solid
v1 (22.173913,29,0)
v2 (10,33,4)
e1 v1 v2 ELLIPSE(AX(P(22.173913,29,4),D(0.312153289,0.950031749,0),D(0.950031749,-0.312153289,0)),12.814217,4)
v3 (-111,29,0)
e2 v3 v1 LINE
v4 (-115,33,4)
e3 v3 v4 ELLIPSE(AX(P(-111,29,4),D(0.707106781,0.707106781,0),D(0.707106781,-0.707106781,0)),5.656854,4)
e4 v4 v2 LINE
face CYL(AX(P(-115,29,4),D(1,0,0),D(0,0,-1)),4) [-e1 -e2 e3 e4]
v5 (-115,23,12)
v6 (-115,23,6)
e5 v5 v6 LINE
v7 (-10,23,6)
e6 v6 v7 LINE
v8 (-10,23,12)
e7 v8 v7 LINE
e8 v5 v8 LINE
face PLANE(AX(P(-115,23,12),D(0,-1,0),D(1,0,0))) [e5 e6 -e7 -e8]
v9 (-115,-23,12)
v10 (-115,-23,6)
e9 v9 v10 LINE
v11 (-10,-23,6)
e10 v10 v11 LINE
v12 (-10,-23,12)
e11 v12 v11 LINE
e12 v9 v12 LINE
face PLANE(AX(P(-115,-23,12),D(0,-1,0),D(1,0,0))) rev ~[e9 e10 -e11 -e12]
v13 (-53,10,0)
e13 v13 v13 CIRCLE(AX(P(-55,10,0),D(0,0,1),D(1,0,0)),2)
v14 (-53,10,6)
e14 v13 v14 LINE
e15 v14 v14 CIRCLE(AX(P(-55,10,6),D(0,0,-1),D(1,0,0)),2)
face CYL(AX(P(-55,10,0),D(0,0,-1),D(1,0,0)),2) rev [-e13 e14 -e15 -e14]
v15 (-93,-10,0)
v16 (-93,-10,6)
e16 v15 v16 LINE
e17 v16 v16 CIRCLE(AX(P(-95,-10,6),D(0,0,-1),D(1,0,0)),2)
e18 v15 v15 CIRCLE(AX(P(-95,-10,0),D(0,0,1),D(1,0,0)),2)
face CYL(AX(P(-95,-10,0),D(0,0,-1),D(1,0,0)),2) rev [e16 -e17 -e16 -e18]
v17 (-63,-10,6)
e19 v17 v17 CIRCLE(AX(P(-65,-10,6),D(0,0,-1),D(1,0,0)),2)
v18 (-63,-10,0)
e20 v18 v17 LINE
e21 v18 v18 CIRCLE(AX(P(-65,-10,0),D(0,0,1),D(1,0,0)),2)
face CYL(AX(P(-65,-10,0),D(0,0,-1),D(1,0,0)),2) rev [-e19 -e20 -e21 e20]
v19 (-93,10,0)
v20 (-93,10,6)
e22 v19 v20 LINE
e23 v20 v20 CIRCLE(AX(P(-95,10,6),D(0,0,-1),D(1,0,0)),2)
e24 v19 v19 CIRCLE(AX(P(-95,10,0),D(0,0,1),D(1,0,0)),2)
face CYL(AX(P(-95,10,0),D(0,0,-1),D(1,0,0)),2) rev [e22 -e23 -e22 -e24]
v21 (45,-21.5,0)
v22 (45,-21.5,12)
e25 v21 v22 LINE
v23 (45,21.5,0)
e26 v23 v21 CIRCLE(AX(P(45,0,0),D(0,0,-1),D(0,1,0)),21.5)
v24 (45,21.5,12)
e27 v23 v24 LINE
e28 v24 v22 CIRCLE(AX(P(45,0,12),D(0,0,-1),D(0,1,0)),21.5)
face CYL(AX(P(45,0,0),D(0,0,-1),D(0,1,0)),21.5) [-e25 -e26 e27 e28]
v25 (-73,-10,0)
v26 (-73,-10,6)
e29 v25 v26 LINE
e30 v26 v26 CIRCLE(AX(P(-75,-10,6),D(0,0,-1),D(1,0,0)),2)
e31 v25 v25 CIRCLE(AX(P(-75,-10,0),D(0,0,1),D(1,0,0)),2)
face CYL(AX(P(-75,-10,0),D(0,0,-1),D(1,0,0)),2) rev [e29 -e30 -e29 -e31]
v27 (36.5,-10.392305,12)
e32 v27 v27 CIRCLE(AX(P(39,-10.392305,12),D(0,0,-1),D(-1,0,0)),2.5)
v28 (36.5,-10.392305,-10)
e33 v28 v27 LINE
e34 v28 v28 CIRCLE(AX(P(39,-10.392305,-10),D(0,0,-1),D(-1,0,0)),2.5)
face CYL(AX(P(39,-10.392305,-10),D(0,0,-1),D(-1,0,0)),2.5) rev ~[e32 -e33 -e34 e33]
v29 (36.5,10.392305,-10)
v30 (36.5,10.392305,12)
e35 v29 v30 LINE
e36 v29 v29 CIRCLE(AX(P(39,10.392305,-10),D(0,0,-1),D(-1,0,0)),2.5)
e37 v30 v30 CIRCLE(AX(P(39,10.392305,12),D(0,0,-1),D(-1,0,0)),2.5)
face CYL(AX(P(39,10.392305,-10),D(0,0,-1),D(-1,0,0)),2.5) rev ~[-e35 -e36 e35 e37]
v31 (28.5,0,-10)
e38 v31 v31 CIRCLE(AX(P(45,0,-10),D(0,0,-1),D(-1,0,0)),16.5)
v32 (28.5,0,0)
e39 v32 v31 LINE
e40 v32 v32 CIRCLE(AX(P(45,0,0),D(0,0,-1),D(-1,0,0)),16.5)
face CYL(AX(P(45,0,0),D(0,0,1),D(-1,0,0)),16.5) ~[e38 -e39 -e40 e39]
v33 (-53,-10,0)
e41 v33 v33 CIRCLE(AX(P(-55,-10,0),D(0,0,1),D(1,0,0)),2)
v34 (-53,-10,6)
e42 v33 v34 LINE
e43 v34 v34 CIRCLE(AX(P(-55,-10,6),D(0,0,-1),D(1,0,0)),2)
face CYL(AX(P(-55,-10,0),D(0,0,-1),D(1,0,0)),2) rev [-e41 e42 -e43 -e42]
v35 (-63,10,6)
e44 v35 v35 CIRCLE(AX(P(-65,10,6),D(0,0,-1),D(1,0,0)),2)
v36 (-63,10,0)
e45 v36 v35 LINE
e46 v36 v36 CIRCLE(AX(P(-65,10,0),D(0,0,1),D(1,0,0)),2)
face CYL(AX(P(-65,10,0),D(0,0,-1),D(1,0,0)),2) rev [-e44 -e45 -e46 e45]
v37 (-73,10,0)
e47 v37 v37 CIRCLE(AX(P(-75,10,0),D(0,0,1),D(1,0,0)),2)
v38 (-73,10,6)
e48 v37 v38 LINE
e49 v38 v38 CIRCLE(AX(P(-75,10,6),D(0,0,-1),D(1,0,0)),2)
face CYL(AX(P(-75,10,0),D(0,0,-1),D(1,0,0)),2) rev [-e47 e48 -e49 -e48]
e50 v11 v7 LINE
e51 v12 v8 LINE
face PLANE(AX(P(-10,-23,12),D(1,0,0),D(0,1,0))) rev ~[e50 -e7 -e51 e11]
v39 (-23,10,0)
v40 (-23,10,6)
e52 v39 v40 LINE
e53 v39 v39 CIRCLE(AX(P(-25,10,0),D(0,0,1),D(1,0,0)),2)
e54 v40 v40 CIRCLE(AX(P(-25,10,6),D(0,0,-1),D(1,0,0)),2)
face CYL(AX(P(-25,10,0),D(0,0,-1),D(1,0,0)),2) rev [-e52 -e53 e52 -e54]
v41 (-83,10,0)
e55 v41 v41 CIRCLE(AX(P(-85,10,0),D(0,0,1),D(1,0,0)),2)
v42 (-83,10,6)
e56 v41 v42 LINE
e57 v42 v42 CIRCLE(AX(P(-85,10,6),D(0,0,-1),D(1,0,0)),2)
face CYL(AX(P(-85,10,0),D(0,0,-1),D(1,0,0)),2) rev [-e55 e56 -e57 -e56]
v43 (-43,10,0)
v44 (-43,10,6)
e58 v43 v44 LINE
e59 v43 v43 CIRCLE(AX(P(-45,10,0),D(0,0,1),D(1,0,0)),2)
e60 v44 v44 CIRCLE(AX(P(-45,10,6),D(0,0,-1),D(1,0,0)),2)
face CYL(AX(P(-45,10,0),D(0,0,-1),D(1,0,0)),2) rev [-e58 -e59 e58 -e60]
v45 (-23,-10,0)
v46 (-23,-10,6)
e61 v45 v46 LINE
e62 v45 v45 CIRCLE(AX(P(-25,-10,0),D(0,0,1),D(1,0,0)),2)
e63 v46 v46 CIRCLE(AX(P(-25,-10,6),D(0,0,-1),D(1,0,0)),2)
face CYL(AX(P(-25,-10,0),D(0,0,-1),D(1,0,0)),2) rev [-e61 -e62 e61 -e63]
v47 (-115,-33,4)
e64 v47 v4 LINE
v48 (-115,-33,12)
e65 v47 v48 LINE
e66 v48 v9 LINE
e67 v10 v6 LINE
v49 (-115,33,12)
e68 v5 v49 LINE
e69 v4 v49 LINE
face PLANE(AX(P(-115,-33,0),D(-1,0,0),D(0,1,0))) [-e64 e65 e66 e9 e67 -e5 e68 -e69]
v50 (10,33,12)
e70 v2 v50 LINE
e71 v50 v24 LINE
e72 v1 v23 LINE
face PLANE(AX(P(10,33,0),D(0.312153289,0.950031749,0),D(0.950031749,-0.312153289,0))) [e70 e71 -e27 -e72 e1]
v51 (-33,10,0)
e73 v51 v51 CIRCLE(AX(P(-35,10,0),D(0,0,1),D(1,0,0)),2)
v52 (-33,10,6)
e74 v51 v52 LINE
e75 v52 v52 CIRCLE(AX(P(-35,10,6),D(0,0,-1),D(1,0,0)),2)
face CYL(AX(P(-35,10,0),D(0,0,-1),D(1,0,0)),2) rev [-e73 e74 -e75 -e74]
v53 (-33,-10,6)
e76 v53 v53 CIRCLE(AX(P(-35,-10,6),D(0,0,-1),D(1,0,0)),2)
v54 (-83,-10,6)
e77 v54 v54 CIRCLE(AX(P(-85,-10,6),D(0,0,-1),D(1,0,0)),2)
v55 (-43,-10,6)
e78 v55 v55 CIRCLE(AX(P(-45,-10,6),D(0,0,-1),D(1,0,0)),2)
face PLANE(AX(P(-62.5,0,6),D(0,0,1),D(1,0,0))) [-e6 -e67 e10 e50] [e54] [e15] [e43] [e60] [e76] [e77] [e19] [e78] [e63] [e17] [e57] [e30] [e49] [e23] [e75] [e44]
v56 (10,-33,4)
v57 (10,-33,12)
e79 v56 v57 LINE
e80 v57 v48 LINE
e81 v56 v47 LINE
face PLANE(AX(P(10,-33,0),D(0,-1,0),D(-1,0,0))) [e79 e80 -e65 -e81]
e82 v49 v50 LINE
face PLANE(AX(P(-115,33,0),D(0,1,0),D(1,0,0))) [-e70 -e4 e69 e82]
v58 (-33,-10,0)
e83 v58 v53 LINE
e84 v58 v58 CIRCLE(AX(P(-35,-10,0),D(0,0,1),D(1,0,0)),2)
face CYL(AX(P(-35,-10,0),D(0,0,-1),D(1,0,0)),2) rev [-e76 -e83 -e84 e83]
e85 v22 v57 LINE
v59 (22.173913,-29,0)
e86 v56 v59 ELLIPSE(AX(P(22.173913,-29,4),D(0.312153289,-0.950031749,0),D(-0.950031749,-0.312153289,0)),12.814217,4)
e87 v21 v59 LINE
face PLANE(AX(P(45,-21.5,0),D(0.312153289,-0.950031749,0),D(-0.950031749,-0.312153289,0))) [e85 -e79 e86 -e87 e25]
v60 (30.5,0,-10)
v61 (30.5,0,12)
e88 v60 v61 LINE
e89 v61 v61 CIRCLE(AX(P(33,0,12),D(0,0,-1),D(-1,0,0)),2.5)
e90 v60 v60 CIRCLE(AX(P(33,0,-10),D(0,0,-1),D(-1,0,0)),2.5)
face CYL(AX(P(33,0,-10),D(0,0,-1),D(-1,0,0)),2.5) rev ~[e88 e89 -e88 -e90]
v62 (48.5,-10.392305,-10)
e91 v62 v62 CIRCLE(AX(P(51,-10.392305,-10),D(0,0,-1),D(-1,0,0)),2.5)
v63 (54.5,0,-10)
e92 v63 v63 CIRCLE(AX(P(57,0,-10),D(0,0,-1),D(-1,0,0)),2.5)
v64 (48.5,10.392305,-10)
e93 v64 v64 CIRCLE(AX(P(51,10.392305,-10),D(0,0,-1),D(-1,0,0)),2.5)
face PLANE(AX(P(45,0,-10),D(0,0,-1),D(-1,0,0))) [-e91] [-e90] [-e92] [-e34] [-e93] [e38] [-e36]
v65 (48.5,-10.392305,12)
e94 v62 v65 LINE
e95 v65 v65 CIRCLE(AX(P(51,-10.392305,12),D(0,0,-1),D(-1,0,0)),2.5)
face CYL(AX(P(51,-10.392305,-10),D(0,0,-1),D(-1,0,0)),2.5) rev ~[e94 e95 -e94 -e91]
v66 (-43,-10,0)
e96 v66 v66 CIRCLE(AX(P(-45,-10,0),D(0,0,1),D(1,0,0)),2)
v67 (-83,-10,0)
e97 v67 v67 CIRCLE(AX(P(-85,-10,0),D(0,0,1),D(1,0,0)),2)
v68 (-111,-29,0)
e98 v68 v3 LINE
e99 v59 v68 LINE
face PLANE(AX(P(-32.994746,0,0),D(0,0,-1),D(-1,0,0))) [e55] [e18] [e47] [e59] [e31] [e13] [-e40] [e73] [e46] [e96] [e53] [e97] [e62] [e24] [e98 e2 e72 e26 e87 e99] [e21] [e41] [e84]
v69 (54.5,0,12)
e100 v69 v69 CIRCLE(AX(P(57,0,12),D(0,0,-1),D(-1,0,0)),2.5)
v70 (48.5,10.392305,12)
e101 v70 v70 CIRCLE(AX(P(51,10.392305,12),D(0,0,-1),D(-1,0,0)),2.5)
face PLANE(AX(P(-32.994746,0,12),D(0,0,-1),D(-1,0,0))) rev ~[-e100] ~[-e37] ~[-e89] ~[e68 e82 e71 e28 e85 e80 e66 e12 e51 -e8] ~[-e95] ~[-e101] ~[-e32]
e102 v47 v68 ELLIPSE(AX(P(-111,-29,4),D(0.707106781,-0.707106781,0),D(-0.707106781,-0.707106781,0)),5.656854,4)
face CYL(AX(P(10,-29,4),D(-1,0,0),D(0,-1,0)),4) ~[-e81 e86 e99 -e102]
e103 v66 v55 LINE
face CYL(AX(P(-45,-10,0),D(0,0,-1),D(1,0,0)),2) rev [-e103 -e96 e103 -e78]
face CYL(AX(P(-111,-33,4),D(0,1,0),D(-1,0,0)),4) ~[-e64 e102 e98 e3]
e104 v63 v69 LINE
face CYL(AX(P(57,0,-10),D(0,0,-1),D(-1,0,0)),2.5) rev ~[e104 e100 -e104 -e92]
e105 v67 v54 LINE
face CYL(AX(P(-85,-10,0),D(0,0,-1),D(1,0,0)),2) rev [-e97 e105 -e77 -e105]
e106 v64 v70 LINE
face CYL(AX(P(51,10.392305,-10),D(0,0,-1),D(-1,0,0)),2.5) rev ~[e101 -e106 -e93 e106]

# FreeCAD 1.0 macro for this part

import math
import FreeCAD as App
import Part
import Sketcher
Q = App.Units.Quantity


def edges_at(feature, points):
    """Names of the edges that pass closest to the given points."""
    edges = feature.Shape.Edges
    near = lambda p: min(range(len(edges)), key=lambda i: edges[i].distToShape(Part.Vertex(*p))[0])
    return sorted({f"Edge{near(p) + 1}" for p in points})


def add_polygon(sketch, points):
    """Adds a closed chain of lines whose ends are joined by coincident constraints."""
    first, n = sketch.GeometryCount, len(points)
    for a, b in zip(points, points[1:] + points[:1]):
        sketch.addGeometry(Part.LineSegment(App.Vector(*a, 0), App.Vector(*b, 0)), False)
    for i in range(n):
        sketch.addConstraint(Sketcher.Constraint("Coincident", first + i, 2, first + (i + 1) % n, 1))

doc = App.newDocument("Part")
body = doc.addObject("PartDesign::Body", "Body")

# Sketch on XY plane
sketch1 = body.newObject("Sketcher::SketchObject", "Sketch")
sketch1.AttachmentSupport = (doc.getObject("XY_Plane"), [""])
sketch1.MapMode = "FlatFace"
sketch1.addGeometry([
    Part.LineSegment(App.Vector(-115, -33, 0), App.Vector(10, -33, 0)),  # 0
    Part.LineSegment(App.Vector(10, -33, 0), App.Vector(45, -21.5, 0)),  # 1
    Part.ArcOfCircle(Part.Circle(App.Vector(45, 0, 0), App.Vector(0, 0, 1), 21.5), math.radians(-90), math.radians(90)),  # 2
    Part.LineSegment(App.Vector(45, 21.5, 0), App.Vector(10, 33, 0)),  # 3
    Part.LineSegment(App.Vector(10, 33, 0), App.Vector(-115, 33, 0)),  # 4
    Part.LineSegment(App.Vector(-115, 33, 0), App.Vector(-115, -33, 0)),  # 5
    Part.Circle(App.Vector(-25, -10, 0), App.Vector(0, 0, 1), 2),  # 6
    Part.Circle(App.Vector(-35, -10, 0), App.Vector(0, 0, 1), 2),  # 7
    Part.Circle(App.Vector(-45, -10, 0), App.Vector(0, 0, 1), 2),  # 8
    Part.Circle(App.Vector(-55, -10, 0), App.Vector(0, 0, 1), 2),  # 9
    Part.Circle(App.Vector(-65, -10, 0), App.Vector(0, 0, 1), 2),  # 10
    Part.Circle(App.Vector(-75, -10, 0), App.Vector(0, 0, 1), 2),  # 11
    Part.Circle(App.Vector(-85, -10, 0), App.Vector(0, 0, 1), 2),  # 12
    Part.Circle(App.Vector(-95, -10, 0), App.Vector(0, 0, 1), 2),  # 13
    Part.Circle(App.Vector(-25, 10, 0), App.Vector(0, 0, 1), 2),  # 14
    Part.Circle(App.Vector(-35, 10, 0), App.Vector(0, 0, 1), 2),  # 15
    Part.Circle(App.Vector(-45, 10, 0), App.Vector(0, 0, 1), 2),  # 16
    Part.Circle(App.Vector(-55, 10, 0), App.Vector(0, 0, 1), 2),  # 17
    Part.Circle(App.Vector(-65, 10, 0), App.Vector(0, 0, 1), 2),  # 18
    Part.Circle(App.Vector(-75, 10, 0), App.Vector(0, 0, 1), 2),  # 19
    Part.Circle(App.Vector(-85, 10, 0), App.Vector(0, 0, 1), 2),  # 20
    Part.Circle(App.Vector(-95, 10, 0), App.Vector(0, 0, 1), 2),  # 21
], False)
sketch1.addConstraint([
    Sketcher.Constraint("Coincident", 0, 2, 1, 1),
    Sketcher.Constraint("Coincident", 1, 2, 2, 1),
    Sketcher.Constraint("Coincident", 2, 2, 3, 1),
    Sketcher.Constraint("Coincident", 3, 2, 4, 1),
    Sketcher.Constraint("Coincident", 4, 2, 5, 1),
    Sketcher.Constraint("Coincident", 5, 2, 0, 1),
    Sketcher.Constraint("Horizontal", 0),
    Sketcher.Constraint("Horizontal", 4),
    Sketcher.Constraint("Vertical", 5),
    Sketcher.Constraint("Equal", 6, 7),
    Sketcher.Constraint("Equal", 7, 8),
    Sketcher.Constraint("Equal", 8, 9),
    Sketcher.Constraint("Equal", 9, 10),
    Sketcher.Constraint("Equal", 10, 11),
    Sketcher.Constraint("Equal", 11, 12),
    Sketcher.Constraint("Equal", 12, 13),
    Sketcher.Constraint("Equal", 13, 14),
    Sketcher.Constraint("Equal", 14, 15),
    Sketcher.Constraint("Equal", 15, 16),
    Sketcher.Constraint("Equal", 16, 17),
    Sketcher.Constraint("Equal", 17, 18),
    Sketcher.Constraint("Equal", 18, 19),
    Sketcher.Constraint("Equal", 19, 20),
    Sketcher.Constraint("Equal", 20, 21),
    Sketcher.Constraint("Symmetric", 6, 3, 14, 3, -1),
    Sketcher.Constraint("Symmetric", 7, 3, 15, 3, -1),
    Sketcher.Constraint("Symmetric", 8, 3, 16, 3, -1),
    Sketcher.Constraint("Symmetric", 9, 3, 17, 3, -1),
    Sketcher.Constraint("Symmetric", 10, 3, 18, 3, -1),
    Sketcher.Constraint("Symmetric", 11, 3, 19, 3, -1),
    Sketcher.Constraint("Symmetric", 12, 3, 20, 3, -1),
    Sketcher.Constraint("Symmetric", 13, 3, 21, 3, -1),
    Sketcher.Constraint("Symmetric", 1, 2, 2, 2, -1),
    Sketcher.Constraint("Symmetric", 0, 2, 3, 2, -1),
    Sketcher.Constraint("Horizontal", 6, 3, 7, 3),
    Sketcher.Constraint("Horizontal", 7, 3, 8, 3),
    Sketcher.Constraint("Horizontal", 8, 3, 9, 3),
    Sketcher.Constraint("Horizontal", 9, 3, 10, 3),
    Sketcher.Constraint("Horizontal", 10, 3, 11, 3),
    Sketcher.Constraint("Horizontal", 11, 3, 12, 3),
    Sketcher.Constraint("Horizontal", 12, 3, 13, 3),
    Sketcher.Constraint("Vertical", 2, 3, 1, 2),
    Sketcher.Constraint("Diameter", 6, Q("4 mm")),
    Sketcher.Constraint("Radius", 2, Q("21.5 mm")),
    Sketcher.Constraint("DistanceX", 0, 1, 0, 2, Q("125 mm")),
    Sketcher.Constraint("DistanceY", 5, 2, 5, 1, Q("66 mm")),
    Sketcher.Constraint("DistanceX", -1, 1, 2, 3, Q("45 mm")),
    Sketcher.Constraint("DistanceX", 6, 3, -1, 1, Q("25 mm")),
    Sketcher.Constraint("DistanceY", 6, 3, -1, 1, Q("10 mm")),
    Sketcher.Constraint("DistanceX", 7, 3, -1, 1, Q("35 mm")),
    Sketcher.Constraint("DistanceX", 8, 3, -1, 1, Q("45 mm")),
    Sketcher.Constraint("DistanceX", 9, 3, -1, 1, Q("55 mm")),
    Sketcher.Constraint("DistanceX", 10, 3, -1, 1, Q("65 mm")),
    Sketcher.Constraint("DistanceX", 11, 3, -1, 1, Q("75 mm")),
    Sketcher.Constraint("DistanceX", 12, 3, -1, 1, Q("85 mm")),
    Sketcher.Constraint("DistanceX", 13, 3, -1, 1, Q("95 mm")),
    Sketcher.Constraint("DistanceX", -1, 1, 0, 2, Q("10 mm")),
])
pad1 = body.newObject("PartDesign::Pad", "Pad")
pad1.Profile = sketch1
pad1.Length = 12

# Sketch on XY plane
sketch2 = body.newObject("Sketcher::SketchObject", "Sketch001")
sketch2.AttachmentSupport = (doc.getObject("XY_Plane"), [""])
sketch2.MapMode = "FlatFace"
sketch2.addGeometry(Part.Circle(App.Vector(45, 0, 0), App.Vector(0, 0, 1), 16), False)
sketch2.addConstraint([
    Sketcher.Constraint("PointOnObject", 0, 3, -1),
    Sketcher.Constraint("Diameter", 0, Q("33 mm")),
    Sketcher.Constraint("DistanceX", -1, 1, 0, 3, Q("45 mm")),
])
pad2 = body.newObject("PartDesign::Pad", "Pad001")
pad2.Profile = sketch2
pad2.Length = 10
pad2.Reversed = True

# Sketch on XY plane
sketch3 = body.newObject("Sketcher::SketchObject", "Sketch002")
sketch3.AttachmentSupport = (doc.getObject("XY_Plane"), [""])
sketch3.MapMode = "FlatFace"
sketch3.AttachmentOffset = App.Placement(App.Vector(0, 0, -10), App.Rotation())
sketch3.addGeometry([
    Part.Circle(App.Vector(51, 10.4, 0), App.Vector(0, 0, 1), 2.5),  # 0
    Part.Circle(App.Vector(39, 10.4, 0), App.Vector(0, 0, 1), 2.5),  # 1
    Part.Circle(App.Vector(33, 0, 0), App.Vector(0, 0, 1), 2.5),  # 2
    Part.Circle(App.Vector(39, -10.4, 0), App.Vector(0, 0, 1), 2.5),  # 3
    Part.Circle(App.Vector(51, -10.4, 0), App.Vector(0, 0, 1), 2.5),  # 4
    Part.Circle(App.Vector(57, 0, 0), App.Vector(0, 0, 1), 2.5),  # 5
], False)
sketch3.addConstraint([
    Sketcher.Constraint("Equal", 0, 1),
    Sketcher.Constraint("Equal", 1, 2),
    Sketcher.Constraint("Equal", 2, 3),
    Sketcher.Constraint("Equal", 3, 4),
    Sketcher.Constraint("Equal", 4, 5),
    Sketcher.Constraint("Symmetric", 1, 3, 3, 3, -1),
    Sketcher.Constraint("Symmetric", 0, 3, 4, 3, -1),
    Sketcher.Constraint("PointOnObject", 2, 3, -1),
    Sketcher.Constraint("PointOnObject", 5, 3, -1),
    Sketcher.Constraint("Horizontal", 0, 3, 1, 3),
    Sketcher.Constraint("Diameter", 0, Q("5 mm")),
    Sketcher.Constraint("DistanceX", -1, 1, 0, 3, Q("51 mm")),
    Sketcher.Constraint("DistanceX", -1, 1, 1, 3, Q("39 mm")),
    Sketcher.Constraint("DistanceX", -1, 1, 2, 3, Q("33 mm")),
    Sketcher.Constraint("DistanceX", -1, 1, 5, 3, Q("57 mm")),
    Sketcher.Constraint("DistanceY", 3, 3, 1, 3, Q("20.78461 mm")),
])
pocket1 = body.newObject("PartDesign::Pocket", "Pocket")
pocket1.Profile = sketch3
pocket1.Type = "ThroughAll"
pocket1.Reversed = True

# Sketch on XY plane
sketch4 = body.newObject("Sketcher::SketchObject", "Sketch003")
sketch4.AttachmentSupport = (doc.getObject("XY_Plane"), [""])
sketch4.MapMode = "FlatFace"
sketch4.AttachmentOffset = App.Placement(App.Vector(0, 0, 12), App.Rotation())
add_polygon(sketch4, [(-115, 23), (-115, -23), (-10, -23), (-10, 23)])  # lines 0-3
sketch4.addConstraint([
    Sketcher.Constraint("Vertical", 0),
    Sketcher.Constraint("Horizontal", 1),
    Sketcher.Constraint("Vertical", 2),
    Sketcher.Constraint("Horizontal", 3),
    Sketcher.Constraint("DistanceX", 1, 1, 1, 2, Q("105 mm")),
    Sketcher.Constraint("DistanceY", 0, 2, 0, 1, Q("46 mm")),
    Sketcher.Constraint("DistanceX", 0, 2, -1, 1, Q("115 mm")),
    Sketcher.Constraint("DistanceY", 0, 2, -1, 1, Q("23 mm")),
])
pocket2 = body.newObject("PartDesign::Pocket", "Pocket001")
pocket2.Profile = sketch4
pocket2.Length = 6
doc.recompute()

fillet = body.newObject("PartDesign::Fillet", "Fillet")
fillet.Base = (pocket2, edges_at(pocket2, [(-52.5, 33, 0), (-52.5, -33, 0), (-115, 0, 0)]))
fillet.Radius = 4

doc.recompute()
